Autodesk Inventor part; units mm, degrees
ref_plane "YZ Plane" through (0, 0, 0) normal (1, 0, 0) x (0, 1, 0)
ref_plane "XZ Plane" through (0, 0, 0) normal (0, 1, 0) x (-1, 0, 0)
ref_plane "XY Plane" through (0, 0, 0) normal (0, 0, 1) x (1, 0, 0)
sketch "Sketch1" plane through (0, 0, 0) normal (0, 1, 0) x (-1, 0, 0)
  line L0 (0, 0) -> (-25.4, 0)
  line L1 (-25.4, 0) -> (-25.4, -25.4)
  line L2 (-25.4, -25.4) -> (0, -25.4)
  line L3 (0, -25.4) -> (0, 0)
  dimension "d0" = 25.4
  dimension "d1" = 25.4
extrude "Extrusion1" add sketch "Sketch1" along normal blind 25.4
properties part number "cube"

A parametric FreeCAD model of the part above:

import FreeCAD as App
import Part
import Sketcher

V = App.Vector
Q = App.Units.Quantity

doc = App.newDocument("Part")
body = doc.addObject("PartDesign::Body", "Body")

# Sketch on XZ plane
sketch1 = body.newObject("Sketcher::SketchObject", "Sketch")
sketch1.AttachmentSupport = (doc.getObject("XZ_Plane"), [""])
sketch1.MapMode = "FlatFace"
sketch1.addGeometry(Part.LineSegment(V(0, -25.4, 0), V(0, 0, 0)), False)
sketch1.addGeometry(Part.LineSegment(V(0, 0, 0), V(25.4, 0, 0)), False)
sketch1.addGeometry(Part.LineSegment(V(25.4, 0, 0), V(25.4, -25.4, 0)), False)
sketch1.addGeometry(Part.LineSegment(V(25.4, -25.4, 0), V(0, -25.4, 0)), False)
sketch1.addConstraint(Sketcher.Constraint("Coincident", 0, 2, 1, 1))
sketch1.addConstraint(Sketcher.Constraint("Coincident", 1, 2, 2, 1))
sketch1.addConstraint(Sketcher.Constraint("Coincident", 2, 2, 3, 1))
sketch1.addConstraint(Sketcher.Constraint("Coincident", 3, 2, 0, 1))
sketch1.addConstraint(Sketcher.Constraint("Vertical", 0))
sketch1.addConstraint(Sketcher.Constraint("Horizontal", 1))
sketch1.addConstraint(Sketcher.Constraint("Vertical", 2))
sketch1.addConstraint(Sketcher.Constraint("Horizontal", 3))
sketch1.addConstraint(Sketcher.Constraint("Coincident", 0, 2, -1, 1))
sketch1.addConstraint(Sketcher.Constraint("Equal", 3, 0))
sketch1.addConstraint(Sketcher.Constraint("DistanceX", 1, 1, 1, 2, Q("1 in")))
pad1 = body.newObject("PartDesign::Pad", "Pad")
pad1.Profile = sketch1
pad1.Length = Q("1 in")
pad1.Reversed = True

doc.recompute()
